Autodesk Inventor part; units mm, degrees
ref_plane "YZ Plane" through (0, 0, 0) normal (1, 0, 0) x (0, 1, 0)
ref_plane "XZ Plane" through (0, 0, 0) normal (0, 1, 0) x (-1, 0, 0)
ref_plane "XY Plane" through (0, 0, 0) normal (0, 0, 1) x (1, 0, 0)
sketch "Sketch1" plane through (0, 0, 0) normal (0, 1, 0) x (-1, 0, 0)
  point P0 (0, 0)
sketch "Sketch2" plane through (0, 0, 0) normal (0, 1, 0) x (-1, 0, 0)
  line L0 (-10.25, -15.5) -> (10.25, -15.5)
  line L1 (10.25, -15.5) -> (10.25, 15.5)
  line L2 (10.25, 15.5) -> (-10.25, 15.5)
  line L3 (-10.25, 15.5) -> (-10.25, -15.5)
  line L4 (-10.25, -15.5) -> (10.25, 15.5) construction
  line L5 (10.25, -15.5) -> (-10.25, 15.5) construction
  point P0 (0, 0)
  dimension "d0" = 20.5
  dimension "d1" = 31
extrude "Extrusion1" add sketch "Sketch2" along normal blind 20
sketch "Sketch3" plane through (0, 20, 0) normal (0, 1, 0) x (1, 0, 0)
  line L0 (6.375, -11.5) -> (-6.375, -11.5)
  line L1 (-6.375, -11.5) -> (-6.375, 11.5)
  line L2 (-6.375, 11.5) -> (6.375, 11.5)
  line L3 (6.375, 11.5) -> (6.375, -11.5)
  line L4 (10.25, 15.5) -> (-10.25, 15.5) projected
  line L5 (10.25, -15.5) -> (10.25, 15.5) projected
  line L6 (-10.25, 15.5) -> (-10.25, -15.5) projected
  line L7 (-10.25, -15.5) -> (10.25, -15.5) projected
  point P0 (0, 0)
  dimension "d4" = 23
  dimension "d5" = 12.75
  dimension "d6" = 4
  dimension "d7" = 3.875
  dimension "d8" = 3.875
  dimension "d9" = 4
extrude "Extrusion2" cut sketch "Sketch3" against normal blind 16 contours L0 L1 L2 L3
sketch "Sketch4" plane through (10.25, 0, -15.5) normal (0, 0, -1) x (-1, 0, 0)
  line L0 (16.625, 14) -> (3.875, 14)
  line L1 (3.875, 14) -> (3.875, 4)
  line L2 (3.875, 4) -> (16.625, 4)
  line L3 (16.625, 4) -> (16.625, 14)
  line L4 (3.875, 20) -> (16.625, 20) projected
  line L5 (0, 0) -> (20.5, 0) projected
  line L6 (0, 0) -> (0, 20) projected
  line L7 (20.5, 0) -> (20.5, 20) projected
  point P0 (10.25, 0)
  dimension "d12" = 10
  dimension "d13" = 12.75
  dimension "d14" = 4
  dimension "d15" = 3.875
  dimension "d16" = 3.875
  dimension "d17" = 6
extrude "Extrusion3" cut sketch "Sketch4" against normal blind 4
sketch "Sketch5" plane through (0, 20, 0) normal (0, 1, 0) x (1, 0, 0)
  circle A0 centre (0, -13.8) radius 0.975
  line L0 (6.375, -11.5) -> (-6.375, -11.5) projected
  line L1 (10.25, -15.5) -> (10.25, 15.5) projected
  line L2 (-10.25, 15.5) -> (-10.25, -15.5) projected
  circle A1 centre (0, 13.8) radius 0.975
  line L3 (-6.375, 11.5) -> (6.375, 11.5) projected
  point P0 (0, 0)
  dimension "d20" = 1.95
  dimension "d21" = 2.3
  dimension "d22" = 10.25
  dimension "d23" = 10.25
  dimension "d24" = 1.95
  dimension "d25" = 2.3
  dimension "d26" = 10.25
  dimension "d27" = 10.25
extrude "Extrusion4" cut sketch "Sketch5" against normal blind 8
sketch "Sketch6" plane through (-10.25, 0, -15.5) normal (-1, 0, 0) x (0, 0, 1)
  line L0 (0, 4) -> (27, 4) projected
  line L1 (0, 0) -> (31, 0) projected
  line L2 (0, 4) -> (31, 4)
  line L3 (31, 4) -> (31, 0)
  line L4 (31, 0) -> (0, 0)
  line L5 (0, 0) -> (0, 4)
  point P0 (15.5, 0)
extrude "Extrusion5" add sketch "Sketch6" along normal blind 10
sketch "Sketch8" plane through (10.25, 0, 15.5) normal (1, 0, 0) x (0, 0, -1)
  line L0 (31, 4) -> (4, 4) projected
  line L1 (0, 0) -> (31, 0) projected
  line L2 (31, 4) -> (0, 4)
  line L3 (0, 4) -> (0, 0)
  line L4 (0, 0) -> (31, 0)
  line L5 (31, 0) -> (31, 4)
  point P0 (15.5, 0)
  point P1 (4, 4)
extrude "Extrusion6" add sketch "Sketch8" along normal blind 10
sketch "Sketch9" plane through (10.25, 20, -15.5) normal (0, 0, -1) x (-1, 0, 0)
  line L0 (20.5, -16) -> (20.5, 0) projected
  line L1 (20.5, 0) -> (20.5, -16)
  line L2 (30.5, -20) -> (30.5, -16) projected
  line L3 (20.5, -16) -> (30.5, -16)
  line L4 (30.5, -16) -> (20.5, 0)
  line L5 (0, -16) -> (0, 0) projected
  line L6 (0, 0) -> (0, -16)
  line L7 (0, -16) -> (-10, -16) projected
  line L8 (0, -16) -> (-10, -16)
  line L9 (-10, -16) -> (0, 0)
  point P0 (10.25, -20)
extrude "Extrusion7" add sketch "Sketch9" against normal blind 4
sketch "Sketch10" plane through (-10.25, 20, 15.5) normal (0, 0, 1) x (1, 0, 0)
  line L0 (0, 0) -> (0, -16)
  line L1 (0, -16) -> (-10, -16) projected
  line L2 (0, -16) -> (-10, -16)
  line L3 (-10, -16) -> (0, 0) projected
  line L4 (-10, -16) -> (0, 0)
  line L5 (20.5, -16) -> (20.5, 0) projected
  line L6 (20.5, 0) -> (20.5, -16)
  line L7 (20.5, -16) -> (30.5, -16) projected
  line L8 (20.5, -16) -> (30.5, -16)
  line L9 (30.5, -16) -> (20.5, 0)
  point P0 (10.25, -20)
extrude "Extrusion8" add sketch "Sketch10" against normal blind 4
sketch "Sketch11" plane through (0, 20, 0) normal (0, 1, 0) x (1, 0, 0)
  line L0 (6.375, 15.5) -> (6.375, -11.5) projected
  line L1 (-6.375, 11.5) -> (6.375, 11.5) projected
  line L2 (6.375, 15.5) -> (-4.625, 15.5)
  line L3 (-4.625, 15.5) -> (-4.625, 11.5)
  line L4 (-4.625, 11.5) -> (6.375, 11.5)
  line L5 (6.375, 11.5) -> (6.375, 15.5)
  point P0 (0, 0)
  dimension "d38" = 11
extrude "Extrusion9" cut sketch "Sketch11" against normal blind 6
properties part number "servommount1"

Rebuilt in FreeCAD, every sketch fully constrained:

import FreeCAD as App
import Part
import Sketcher

V = App.Vector


def add_polygon(sketch, points):
    """Adds a closed chain of lines whose ends are joined by coincident constraints."""
    first, n = sketch.GeometryCount, len(points)
    for a, b in zip(points, points[1:] + points[:1]):
        sketch.addGeometry(Part.LineSegment(App.Vector(*a, 0), App.Vector(*b, 0)), False)
    for i in range(n):
        sketch.addConstraint(Sketcher.Constraint("Coincident", first + i, 2, first + (i + 1) % n, 1))

doc = App.newDocument("Part")
body = doc.addObject("PartDesign::Body", "Body")

# Sketch on XZ plane
sketch1 = body.newObject("Sketcher::SketchObject", "Sketch")
sketch1.AttachmentSupport = (doc.getObject("XZ_Plane"), [""])
sketch1.MapMode = "FlatFace"
add_polygon(sketch1, [(10.25, 15.5), (10.25, -15.5), (-10.25, -15.5), (-10.25, 15.5)])  # lines 0-3
sketch1.addConstraint(Sketcher.Constraint("Vertical", 0))
sketch1.addConstraint(Sketcher.Constraint("Horizontal", 1))
sketch1.addConstraint(Sketcher.Constraint("Vertical", 2))
sketch1.addConstraint(Sketcher.Constraint("Horizontal", 3))
sketch1.addConstraint(Sketcher.Constraint("Symmetric", 0, 2, 2, 2, -1, 1))
sketch1.addConstraint(Sketcher.Constraint("DistanceY", 0, 2, 0, 1, 31.0))
sketch1.addConstraint(Sketcher.Constraint("DistanceX", 1, 2, 1, 1, 20.5))
pad1 = body.newObject("PartDesign::Pad", "Pad")
pad1.Profile = sketch1
pad1.Length = 20
pad1.Reversed = True

# Sketch on XZ plane
sketch2 = body.newObject("Sketcher::SketchObject", "Sketch001")
sketch2.AttachmentSupport = (doc.getObject("XZ_Plane"), [""])
sketch2.MapMode = "FlatFace"
sketch2.AttachmentOffset = App.Placement(V(0, 0, -20), App.Rotation())
add_polygon(sketch2, [(-6.375, 11.5), (6.375, 11.5), (6.375, -11.5), (-6.375, -11.5)])  # lines 0-3
sketch2.addConstraint(Sketcher.Constraint("Horizontal", 0))
sketch2.addConstraint(Sketcher.Constraint("Vertical", 1))
sketch2.addConstraint(Sketcher.Constraint("Horizontal", 2))
sketch2.addConstraint(Sketcher.Constraint("Vertical", 3))
sketch2.addConstraint(Sketcher.Constraint("Symmetric", 0, 2, 2, 2, -1, 1))
sketch2.addConstraint(Sketcher.Constraint("DistanceY", 1, 2, 1, 1, 23.0))
sketch2.addConstraint(Sketcher.Constraint("DistanceX", 0, 1, 0, 2, 12.75))
pocket1 = body.newObject("PartDesign::Pocket", "Pocket")
pocket1.Profile = sketch2
pocket1.Length = 16
pocket1.Reversed = True

# Sketch on XY plane
sketch3 = body.newObject("Sketcher::SketchObject", "Sketch002")
sketch3.AttachmentSupport = (doc.getObject("XY_Plane"), [""])
sketch3.MapMode = "FlatFace"
sketch3.AttachmentOffset = App.Placement(V(0, 0, -15.5), App.Rotation())
add_polygon(sketch3, [(-6.375, 4), (-6.375, 14), (6.375, 14), (6.375, 4)])  # lines 0-3
sketch3.addConstraint(Sketcher.Constraint("Vertical", 0))
sketch3.addConstraint(Sketcher.Constraint("Horizontal", 1))
sketch3.addConstraint(Sketcher.Constraint("Vertical", 2))
sketch3.addConstraint(Sketcher.Constraint("Horizontal", 3))
sketch3.addConstraint(Sketcher.Constraint("DistanceY", 0, 1, 0, 2, 10.0))
sketch3.addConstraint(Sketcher.Constraint("DistanceY", -1, 1, 2, 2, 4.0))
sketch3.addConstraint(Sketcher.Constraint("DistanceX", 1, 1, 1, 2, 12.75))
sketch3.addConstraint(Sketcher.Constraint("DistanceX", 0, 2, -1, 1, 6.375))
pocket2 = body.newObject("PartDesign::Pocket", "Pocket001")
pocket2.Profile = sketch3
pocket2.Length = 4
pocket2.Reversed = True

# Sketch on XZ plane
sketch4 = body.newObject("Sketcher::SketchObject", "Sketch003")
sketch4.AttachmentSupport = (doc.getObject("XZ_Plane"), [""])
sketch4.MapMode = "FlatFace"
sketch4.AttachmentOffset = App.Placement(V(0, 0, -20), App.Rotation())
sketch4.addGeometry(Part.Circle(V(0, 13.8, 0), V(0, 0, 1), 0.975), False)
sketch4.addGeometry(Part.Circle(V(0, -13.8, 0), V(0, 0, 1), 0.975), False)
sketch4.addConstraint(Sketcher.Constraint("Equal", 0, 1))
sketch4.addConstraint(Sketcher.Constraint("Symmetric", 0, 3, 1, 3, -1, 1))
sketch4.addConstraint(Sketcher.Constraint("PointOnObject", 0, 3, -2))
sketch4.addConstraint(Sketcher.Constraint("Diameter", 0, 1.95))
sketch4.addConstraint(Sketcher.Constraint("DistanceY", -1, 1, 0, 3, 13.8))
pocket3 = body.newObject("PartDesign::Pocket", "Pocket002")
pocket3.Profile = sketch4
pocket3.Length = 8
pocket3.Reversed = True

# Sketch on YZ plane
sketch5 = body.newObject("Sketcher::SketchObject", "Sketch004")
sketch5.AttachmentSupport = (doc.getObject("YZ_Plane"), [""])
sketch5.MapMode = "FlatFace"
sketch5.AttachmentOffset = App.Placement(V(0, 0, -10.25), App.Rotation())
add_polygon(sketch5, [(4, 15.5), (4, -15.5), (0, -15.5), (0, 15.5)])  # lines 0-3
sketch5.addConstraint(Sketcher.Constraint("Vertical", 0))
sketch5.addConstraint(Sketcher.Constraint("Horizontal", 1))
sketch5.addConstraint(Sketcher.Constraint("Vertical", 2))
sketch5.addConstraint(Sketcher.Constraint("Horizontal", 3))
sketch5.addConstraint(Sketcher.Constraint("Symmetric", 1, 2, 2, 2, -1, 1))
sketch5.addConstraint(Sketcher.Constraint("DistanceX", 1, 2, 1, 1, 4.0))
sketch5.addConstraint(Sketcher.Constraint("DistanceY", 0, 2, 0, 1, 31.0))
pad2 = body.newObject("PartDesign::Pad", "Pad001")
pad2.Profile = sketch5
pad2.Length = 10
pad2.Reversed = True

# Sketch on YZ plane
sketch6 = body.newObject("Sketcher::SketchObject", "Sketch005")
sketch6.AttachmentSupport = (doc.getObject("YZ_Plane"), [""])
sketch6.MapMode = "FlatFace"
sketch6.AttachmentOffset = App.Placement(V(0, 0, 10.25), App.Rotation())
add_polygon(sketch6, [(0, -15.5), (4, -15.5), (4, 15.5), (0, 15.5)])  # lines 0-3
sketch6.addConstraint(Sketcher.Constraint("Horizontal", 0))
sketch6.addConstraint(Sketcher.Constraint("Vertical", 1))
sketch6.addConstraint(Sketcher.Constraint("Horizontal", 2))
sketch6.addConstraint(Sketcher.Constraint("Vertical", 3))
sketch6.addConstraint(Sketcher.Constraint("Symmetric", 2, 2, 3, 2, -1, 1))
sketch6.addConstraint(Sketcher.Constraint("DistanceX", 0, 1, 0, 2, 4.0))
sketch6.addConstraint(Sketcher.Constraint("DistanceY", 1, 1, 1, 2, 31.0))
pad3 = body.newObject("PartDesign::Pad", "Pad002")
pad3.Profile = sketch6
pad3.Length = 10

# Sketch on XY plane
sketch7 = body.newObject("Sketcher::SketchObject", "Sketch006")
sketch7.AttachmentSupport = (doc.getObject("XY_Plane"), [""])
sketch7.MapMode = "FlatFace"
sketch7.AttachmentOffset = App.Placement(V(0, 0, -15.5), App.Rotation())
add_polygon(sketch7, [(-10.25, 20), (-10.25, 4), (-20.25, 4)])  # lines 0-2
add_polygon(sketch7, [(20.25, 4), (10.25, 4), (10.25, 20)])  # lines 3-5
sketch7.addConstraint(Sketcher.Constraint("Vertical", 0))
sketch7.addConstraint(Sketcher.Constraint("Horizontal", 1))
sketch7.addConstraint(Sketcher.Constraint("Horizontal", 3))
sketch7.addConstraint(Sketcher.Constraint("Vertical", 4))
sketch7.addConstraint(Sketcher.Constraint("Symmetric", 0, 2, 3, 2, -2))
sketch7.addConstraint(Sketcher.Constraint("Horizontal", 2, 2, 4, 2))
sketch7.addConstraint(Sketcher.Constraint("Equal", 1, 3))
sketch7.addConstraint(Sketcher.Constraint("DistanceX", 1, 2, 1, 1, 10.0))
sketch7.addConstraint(Sketcher.Constraint("DistanceY", 0, 2, 0, 1, 16.0))
sketch7.addConstraint(Sketcher.Constraint("DistanceY", -1, 1, 0, 2, 4.0))
sketch7.addConstraint(Sketcher.Constraint("DistanceX", 0, 2, 3, 2, 20.5))
pad4 = body.newObject("PartDesign::Pad", "Pad003")
pad4.Profile = sketch7
pad4.Length = 4

# Sketch on XY plane
sketch8 = body.newObject("Sketcher::SketchObject", "Sketch007")
sketch8.AttachmentSupport = (doc.getObject("XY_Plane"), [""])
sketch8.MapMode = "FlatFace"
sketch8.AttachmentOffset = App.Placement(V(0, 0, 15.5), App.Rotation())
add_polygon(sketch8, [(-10.25, 4), (-10.25, 20), (-20.25, 4)])  # lines 0-2
add_polygon(sketch8, [(10.25, 20), (10.25, 4), (20.25, 4)])  # lines 3-5
sketch8.addConstraint(Sketcher.Constraint("Vertical", 0))
sketch8.addConstraint(Sketcher.Constraint("Horizontal", 2))
sketch8.addConstraint(Sketcher.Constraint("Vertical", 3))
sketch8.addConstraint(Sketcher.Constraint("Horizontal", 4))
sketch8.addConstraint(Sketcher.Constraint("Symmetric", 2, 2, 3, 2, -2))
sketch8.addConstraint(Sketcher.Constraint("Horizontal", 0, 2, 5, 2))
sketch8.addConstraint(Sketcher.Constraint("Equal", 2, 4))
sketch8.addConstraint(Sketcher.Constraint("DistanceX", 2, 1, 2, 2, 10.0))
sketch8.addConstraint(Sketcher.Constraint("DistanceY", 0, 1, 0, 2, 16.0))
sketch8.addConstraint(Sketcher.Constraint("DistanceY", -1, 1, 0, 2, 20.0))
sketch8.addConstraint(Sketcher.Constraint("DistanceX", 2, 2, 3, 2, 20.5))
pad5 = body.newObject("PartDesign::Pad", "Pad004")
pad5.Profile = sketch8
pad5.Length = 4
pad5.Reversed = True

# Sketch on XZ plane
sketch9 = body.newObject("Sketcher::SketchObject", "Sketch008")
sketch9.AttachmentSupport = (doc.getObject("XZ_Plane"), [""])
sketch9.MapMode = "FlatFace"
sketch9.AttachmentOffset = App.Placement(V(0, 0, -20), App.Rotation())
add_polygon(sketch9, [(6.375, -11.5), (6.375, -15.5), (-4.625, -15.5), (-4.625, -11.5)])  # lines 0-3
sketch9.addConstraint(Sketcher.Constraint("Vertical", 0))
sketch9.addConstraint(Sketcher.Constraint("Horizontal", 1))
sketch9.addConstraint(Sketcher.Constraint("Vertical", 2))
sketch9.addConstraint(Sketcher.Constraint("Horizontal", 3))
sketch9.addConstraint(Sketcher.Constraint("DistanceX", 1, 2, 1, 1, 11.0))
sketch9.addConstraint(Sketcher.Constraint("DistanceY", 0, 2, 0, 1, 4.0))
sketch9.addConstraint(Sketcher.Constraint("DistanceY", 0, 2, -1, 1, 15.5))
sketch9.addConstraint(Sketcher.Constraint("DistanceX", -1, 1, 0, 2, 6.375))
pocket4 = body.newObject("PartDesign::Pocket", "Pocket003")
pocket4.Profile = sketch9
pocket4.Length = 6
pocket4.Reversed = True

doc.recompute()
